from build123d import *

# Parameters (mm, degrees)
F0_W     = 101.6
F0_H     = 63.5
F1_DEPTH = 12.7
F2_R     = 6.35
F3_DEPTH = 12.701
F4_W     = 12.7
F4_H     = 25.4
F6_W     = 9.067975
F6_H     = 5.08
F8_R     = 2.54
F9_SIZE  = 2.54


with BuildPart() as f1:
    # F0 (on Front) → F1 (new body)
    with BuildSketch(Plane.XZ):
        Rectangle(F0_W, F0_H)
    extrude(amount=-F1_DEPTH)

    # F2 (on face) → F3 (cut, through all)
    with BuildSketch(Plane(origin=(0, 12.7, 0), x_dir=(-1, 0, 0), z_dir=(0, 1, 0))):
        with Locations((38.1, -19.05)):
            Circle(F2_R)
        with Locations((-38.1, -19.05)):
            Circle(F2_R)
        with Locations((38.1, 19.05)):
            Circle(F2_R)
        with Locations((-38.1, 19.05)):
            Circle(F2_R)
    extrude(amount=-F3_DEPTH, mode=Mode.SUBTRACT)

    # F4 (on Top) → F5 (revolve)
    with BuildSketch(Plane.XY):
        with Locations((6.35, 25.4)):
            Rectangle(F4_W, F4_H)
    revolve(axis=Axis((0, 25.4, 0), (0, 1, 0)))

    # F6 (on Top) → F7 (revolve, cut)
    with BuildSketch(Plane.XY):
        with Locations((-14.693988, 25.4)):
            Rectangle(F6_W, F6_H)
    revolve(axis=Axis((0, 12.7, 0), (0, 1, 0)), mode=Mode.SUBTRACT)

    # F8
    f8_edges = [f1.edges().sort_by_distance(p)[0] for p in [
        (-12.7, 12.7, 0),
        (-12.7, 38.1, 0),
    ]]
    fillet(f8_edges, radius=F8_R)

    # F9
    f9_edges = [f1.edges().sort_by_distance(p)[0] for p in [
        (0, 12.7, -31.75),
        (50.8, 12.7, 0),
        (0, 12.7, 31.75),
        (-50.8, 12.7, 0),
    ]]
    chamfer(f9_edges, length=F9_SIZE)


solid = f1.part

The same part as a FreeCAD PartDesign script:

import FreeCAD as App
import Part
import Sketcher
Q = App.Units.Quantity


def edges_at(feature, points):
    """Names of the edges that pass closest to the given points."""
    edges = feature.Shape.Edges
    near = lambda p: min(range(len(edges)), key=lambda i: edges[i].distToShape(Part.Vertex(*p))[0])
    return sorted({f"Edge{near(p) + 1}" for p in points})

doc = App.newDocument("Part")
body = doc.addObject("PartDesign::Body", "Body")

# Sketch on XZ plane
sketch1 = body.newObject("Sketcher::SketchObject", "Sketch")
sketch1.AttachmentSupport = (doc.getObject("XZ_Plane"), [""])
sketch1.MapMode = "FlatFace"
sketch1.addGeometry([
    Part.LineSegment(App.Vector(-51, 32, 0), App.Vector(-51, -32, 0)),
    Part.LineSegment(App.Vector(-51, -32, 0), App.Vector(51, -32, 0)),
    Part.LineSegment(App.Vector(51, -32, 0), App.Vector(51, 32, 0)),
    Part.LineSegment(App.Vector(51, 32, 0), App.Vector(-51, 32, 0)),
], False)
sketch1.addConstraint([
    Sketcher.Constraint("Coincident", 0, 2, 1, 1),
    Sketcher.Constraint("Coincident", 1, 2, 2, 1),
    Sketcher.Constraint("Coincident", 2, 2, 3, 1),
    Sketcher.Constraint("Coincident", 3, 2, 0, 1),
    Sketcher.Constraint("Vertical", 0),
    Sketcher.Constraint("Horizontal", 1),
    Sketcher.Constraint("Vertical", 2),
    Sketcher.Constraint("Horizontal", 3),
    Sketcher.Constraint("Symmetric", 0, 2, 2, 2, -1, 1),
    Sketcher.Constraint("DistanceX", 1, 1, 1, 2, Q("4 in")),
    Sketcher.Constraint("DistanceY", 0, 2, 0, 1, Q("2.5 in")),
])
pad1 = body.newObject("PartDesign::Pad", "Pad")
pad1.Profile = sketch1
pad1.Length = Q("0.5 in")
pad1.Reversed = True

# Sketch on XZ plane
sketch2 = body.newObject("Sketcher::SketchObject", "Sketch001")
sketch2.AttachmentSupport = (doc.getObject("XZ_Plane"), [""])
sketch2.MapMode = "FlatFace"
sketch2.AttachmentOffset = App.Placement(App.Vector(0, 0, -0.5 * 25.4), App.Rotation())
sketch2.addGeometry([
    Part.Circle(App.Vector(-38, -19, 0), App.Vector(0, 0, 1), 6),
    Part.Circle(App.Vector(38, -19, 0), App.Vector(0, 0, 1), 6),
    Part.Circle(App.Vector(-38, 19, 0), App.Vector(0, 0, 1), 6),
    Part.Circle(App.Vector(38, 19, 0), App.Vector(0, 0, 1), 6),
], False)
sketch2.addConstraint([
    Sketcher.Constraint("Equal", 0, 1),
    Sketcher.Constraint("Equal", 1, 2),
    Sketcher.Constraint("Equal", 2, 3),
    Sketcher.Constraint("Symmetric", 1, 3, 2, 3, -1, 1),
    Sketcher.Constraint("Symmetric", 0, 3, 3, 3, -1, 1),
    Sketcher.Constraint("Symmetric", 0, 3, 1, 3, -2),
    Sketcher.Constraint("Diameter", 0, Q("0.5 in")),
    Sketcher.Constraint("DistanceX", 0, 3, 1, 3, Q("3 in")),
    Sketcher.Constraint("DistanceY", 0, 3, 2, 3, Q("1.5 in")),
])
pocket1 = body.newObject("PartDesign::Pocket", "Pocket")
pocket1.Profile = sketch2
pocket1.Type = "ThroughAll"
pocket1.Reversed = True

# Sketch on XY plane
sketch3 = body.newObject("Sketcher::SketchObject", "Sketch002")
sketch3.AttachmentSupport = (doc.getObject("XY_Plane"), [""])
sketch3.MapMode = "FlatFace"
sketch3.addGeometry([
    Part.LineSegment(App.Vector(0, 38, 0), App.Vector(0, 13, 0)),
    Part.LineSegment(App.Vector(0, 13, 0), App.Vector(13, 13, 0)),
    Part.LineSegment(App.Vector(13, 13, 0), App.Vector(13, 38, 0)),
    Part.LineSegment(App.Vector(13, 38, 0), App.Vector(0, 38, 0)),
], False)
sketch3.addConstraint([
    Sketcher.Constraint("Coincident", 0, 2, 1, 1),
    Sketcher.Constraint("Coincident", 1, 2, 2, 1),
    Sketcher.Constraint("Coincident", 2, 2, 3, 1),
    Sketcher.Constraint("Coincident", 3, 2, 0, 1),
    Sketcher.Constraint("Vertical", 0),
    Sketcher.Constraint("Horizontal", 1),
    Sketcher.Constraint("Vertical", 2),
    Sketcher.Constraint("Horizontal", 3),
    Sketcher.Constraint("PointOnObject", 0, 2, -2),
    Sketcher.Constraint("DistanceY", 0, 2, 0, 1, Q("1 in")),
    Sketcher.Constraint("DistanceX", 1, 1, 1, 2, Q("0.5 in")),
    Sketcher.Constraint("DistanceY", -1, 1, 0, 2, Q("0.5 in")),
])
revolution = body.newObject("PartDesign::Revolution", "Revolution")
revolution.Profile = sketch3
revolution.ReferenceAxis = (sketch3, ["V_Axis"])
revolution.Angle = 360

# Sketch on XY plane
sketch4 = body.newObject("Sketcher::SketchObject", "Sketch003")
sketch4.AttachmentSupport = (doc.getObject("XY_Plane"), [""])
sketch4.MapMode = "FlatFace"
sketch4.addGeometry([
    Part.LineSegment(App.Vector(-19, 28, 0), App.Vector(-19, 23, 0)),
    Part.LineSegment(App.Vector(-19, 23, 0), App.Vector(-10, 23, 0)),
    Part.LineSegment(App.Vector(-10, 23, 0), App.Vector(-10, 28, 0)),
    Part.LineSegment(App.Vector(-10, 28, 0), App.Vector(-19, 28, 0)),
], False)
sketch4.addConstraint([
    Sketcher.Constraint("Coincident", 0, 2, 1, 1),
    Sketcher.Constraint("Coincident", 1, 2, 2, 1),
    Sketcher.Constraint("Coincident", 2, 2, 3, 1),
    Sketcher.Constraint("Coincident", 3, 2, 0, 1),
    Sketcher.Constraint("Vertical", 0),
    Sketcher.Constraint("Horizontal", 1),
    Sketcher.Constraint("Vertical", 2),
    Sketcher.Constraint("Horizontal", 3),
    Sketcher.Constraint("DistanceY", 0, 2, 0, 1, Q("0.2 in")),
    Sketcher.Constraint("DistanceY", -1, 1, 0, 2, Q("0.9 in")),
    Sketcher.Constraint("DistanceX", 1, 2, -1, 1, Q("0.4 in")),
    Sketcher.Constraint("DistanceX", 1, 1, 1, 2, 9.067975),
])
groove = body.newObject("PartDesign::Groove", "Groove")
groove.Profile = sketch4
groove.ReferenceAxis = (sketch4, ["V_Axis"])
groove.Angle = 360
doc.recompute()

fillet = body.newObject("PartDesign::Fillet", "Fillet")
fillet.Base = (groove, edges_at(groove, [(-12.7, 12.7, 0), (-12.7, 38.1, 0)]))
fillet.Radius = Q("0.1 in")
doc.recompute()

chamfer = body.newObject("PartDesign::Chamfer", "Chamfer")
chamfer.Base = (fillet, edges_at(fillet, [
    (0, 12.7, -31.75),
    (50.8, 12.7, 0),
    (0, 12.7, 31.75),
    (-50.8, 12.7, 0),
]))
chamfer.Size = Q("0.1 in")

doc.recompute()
